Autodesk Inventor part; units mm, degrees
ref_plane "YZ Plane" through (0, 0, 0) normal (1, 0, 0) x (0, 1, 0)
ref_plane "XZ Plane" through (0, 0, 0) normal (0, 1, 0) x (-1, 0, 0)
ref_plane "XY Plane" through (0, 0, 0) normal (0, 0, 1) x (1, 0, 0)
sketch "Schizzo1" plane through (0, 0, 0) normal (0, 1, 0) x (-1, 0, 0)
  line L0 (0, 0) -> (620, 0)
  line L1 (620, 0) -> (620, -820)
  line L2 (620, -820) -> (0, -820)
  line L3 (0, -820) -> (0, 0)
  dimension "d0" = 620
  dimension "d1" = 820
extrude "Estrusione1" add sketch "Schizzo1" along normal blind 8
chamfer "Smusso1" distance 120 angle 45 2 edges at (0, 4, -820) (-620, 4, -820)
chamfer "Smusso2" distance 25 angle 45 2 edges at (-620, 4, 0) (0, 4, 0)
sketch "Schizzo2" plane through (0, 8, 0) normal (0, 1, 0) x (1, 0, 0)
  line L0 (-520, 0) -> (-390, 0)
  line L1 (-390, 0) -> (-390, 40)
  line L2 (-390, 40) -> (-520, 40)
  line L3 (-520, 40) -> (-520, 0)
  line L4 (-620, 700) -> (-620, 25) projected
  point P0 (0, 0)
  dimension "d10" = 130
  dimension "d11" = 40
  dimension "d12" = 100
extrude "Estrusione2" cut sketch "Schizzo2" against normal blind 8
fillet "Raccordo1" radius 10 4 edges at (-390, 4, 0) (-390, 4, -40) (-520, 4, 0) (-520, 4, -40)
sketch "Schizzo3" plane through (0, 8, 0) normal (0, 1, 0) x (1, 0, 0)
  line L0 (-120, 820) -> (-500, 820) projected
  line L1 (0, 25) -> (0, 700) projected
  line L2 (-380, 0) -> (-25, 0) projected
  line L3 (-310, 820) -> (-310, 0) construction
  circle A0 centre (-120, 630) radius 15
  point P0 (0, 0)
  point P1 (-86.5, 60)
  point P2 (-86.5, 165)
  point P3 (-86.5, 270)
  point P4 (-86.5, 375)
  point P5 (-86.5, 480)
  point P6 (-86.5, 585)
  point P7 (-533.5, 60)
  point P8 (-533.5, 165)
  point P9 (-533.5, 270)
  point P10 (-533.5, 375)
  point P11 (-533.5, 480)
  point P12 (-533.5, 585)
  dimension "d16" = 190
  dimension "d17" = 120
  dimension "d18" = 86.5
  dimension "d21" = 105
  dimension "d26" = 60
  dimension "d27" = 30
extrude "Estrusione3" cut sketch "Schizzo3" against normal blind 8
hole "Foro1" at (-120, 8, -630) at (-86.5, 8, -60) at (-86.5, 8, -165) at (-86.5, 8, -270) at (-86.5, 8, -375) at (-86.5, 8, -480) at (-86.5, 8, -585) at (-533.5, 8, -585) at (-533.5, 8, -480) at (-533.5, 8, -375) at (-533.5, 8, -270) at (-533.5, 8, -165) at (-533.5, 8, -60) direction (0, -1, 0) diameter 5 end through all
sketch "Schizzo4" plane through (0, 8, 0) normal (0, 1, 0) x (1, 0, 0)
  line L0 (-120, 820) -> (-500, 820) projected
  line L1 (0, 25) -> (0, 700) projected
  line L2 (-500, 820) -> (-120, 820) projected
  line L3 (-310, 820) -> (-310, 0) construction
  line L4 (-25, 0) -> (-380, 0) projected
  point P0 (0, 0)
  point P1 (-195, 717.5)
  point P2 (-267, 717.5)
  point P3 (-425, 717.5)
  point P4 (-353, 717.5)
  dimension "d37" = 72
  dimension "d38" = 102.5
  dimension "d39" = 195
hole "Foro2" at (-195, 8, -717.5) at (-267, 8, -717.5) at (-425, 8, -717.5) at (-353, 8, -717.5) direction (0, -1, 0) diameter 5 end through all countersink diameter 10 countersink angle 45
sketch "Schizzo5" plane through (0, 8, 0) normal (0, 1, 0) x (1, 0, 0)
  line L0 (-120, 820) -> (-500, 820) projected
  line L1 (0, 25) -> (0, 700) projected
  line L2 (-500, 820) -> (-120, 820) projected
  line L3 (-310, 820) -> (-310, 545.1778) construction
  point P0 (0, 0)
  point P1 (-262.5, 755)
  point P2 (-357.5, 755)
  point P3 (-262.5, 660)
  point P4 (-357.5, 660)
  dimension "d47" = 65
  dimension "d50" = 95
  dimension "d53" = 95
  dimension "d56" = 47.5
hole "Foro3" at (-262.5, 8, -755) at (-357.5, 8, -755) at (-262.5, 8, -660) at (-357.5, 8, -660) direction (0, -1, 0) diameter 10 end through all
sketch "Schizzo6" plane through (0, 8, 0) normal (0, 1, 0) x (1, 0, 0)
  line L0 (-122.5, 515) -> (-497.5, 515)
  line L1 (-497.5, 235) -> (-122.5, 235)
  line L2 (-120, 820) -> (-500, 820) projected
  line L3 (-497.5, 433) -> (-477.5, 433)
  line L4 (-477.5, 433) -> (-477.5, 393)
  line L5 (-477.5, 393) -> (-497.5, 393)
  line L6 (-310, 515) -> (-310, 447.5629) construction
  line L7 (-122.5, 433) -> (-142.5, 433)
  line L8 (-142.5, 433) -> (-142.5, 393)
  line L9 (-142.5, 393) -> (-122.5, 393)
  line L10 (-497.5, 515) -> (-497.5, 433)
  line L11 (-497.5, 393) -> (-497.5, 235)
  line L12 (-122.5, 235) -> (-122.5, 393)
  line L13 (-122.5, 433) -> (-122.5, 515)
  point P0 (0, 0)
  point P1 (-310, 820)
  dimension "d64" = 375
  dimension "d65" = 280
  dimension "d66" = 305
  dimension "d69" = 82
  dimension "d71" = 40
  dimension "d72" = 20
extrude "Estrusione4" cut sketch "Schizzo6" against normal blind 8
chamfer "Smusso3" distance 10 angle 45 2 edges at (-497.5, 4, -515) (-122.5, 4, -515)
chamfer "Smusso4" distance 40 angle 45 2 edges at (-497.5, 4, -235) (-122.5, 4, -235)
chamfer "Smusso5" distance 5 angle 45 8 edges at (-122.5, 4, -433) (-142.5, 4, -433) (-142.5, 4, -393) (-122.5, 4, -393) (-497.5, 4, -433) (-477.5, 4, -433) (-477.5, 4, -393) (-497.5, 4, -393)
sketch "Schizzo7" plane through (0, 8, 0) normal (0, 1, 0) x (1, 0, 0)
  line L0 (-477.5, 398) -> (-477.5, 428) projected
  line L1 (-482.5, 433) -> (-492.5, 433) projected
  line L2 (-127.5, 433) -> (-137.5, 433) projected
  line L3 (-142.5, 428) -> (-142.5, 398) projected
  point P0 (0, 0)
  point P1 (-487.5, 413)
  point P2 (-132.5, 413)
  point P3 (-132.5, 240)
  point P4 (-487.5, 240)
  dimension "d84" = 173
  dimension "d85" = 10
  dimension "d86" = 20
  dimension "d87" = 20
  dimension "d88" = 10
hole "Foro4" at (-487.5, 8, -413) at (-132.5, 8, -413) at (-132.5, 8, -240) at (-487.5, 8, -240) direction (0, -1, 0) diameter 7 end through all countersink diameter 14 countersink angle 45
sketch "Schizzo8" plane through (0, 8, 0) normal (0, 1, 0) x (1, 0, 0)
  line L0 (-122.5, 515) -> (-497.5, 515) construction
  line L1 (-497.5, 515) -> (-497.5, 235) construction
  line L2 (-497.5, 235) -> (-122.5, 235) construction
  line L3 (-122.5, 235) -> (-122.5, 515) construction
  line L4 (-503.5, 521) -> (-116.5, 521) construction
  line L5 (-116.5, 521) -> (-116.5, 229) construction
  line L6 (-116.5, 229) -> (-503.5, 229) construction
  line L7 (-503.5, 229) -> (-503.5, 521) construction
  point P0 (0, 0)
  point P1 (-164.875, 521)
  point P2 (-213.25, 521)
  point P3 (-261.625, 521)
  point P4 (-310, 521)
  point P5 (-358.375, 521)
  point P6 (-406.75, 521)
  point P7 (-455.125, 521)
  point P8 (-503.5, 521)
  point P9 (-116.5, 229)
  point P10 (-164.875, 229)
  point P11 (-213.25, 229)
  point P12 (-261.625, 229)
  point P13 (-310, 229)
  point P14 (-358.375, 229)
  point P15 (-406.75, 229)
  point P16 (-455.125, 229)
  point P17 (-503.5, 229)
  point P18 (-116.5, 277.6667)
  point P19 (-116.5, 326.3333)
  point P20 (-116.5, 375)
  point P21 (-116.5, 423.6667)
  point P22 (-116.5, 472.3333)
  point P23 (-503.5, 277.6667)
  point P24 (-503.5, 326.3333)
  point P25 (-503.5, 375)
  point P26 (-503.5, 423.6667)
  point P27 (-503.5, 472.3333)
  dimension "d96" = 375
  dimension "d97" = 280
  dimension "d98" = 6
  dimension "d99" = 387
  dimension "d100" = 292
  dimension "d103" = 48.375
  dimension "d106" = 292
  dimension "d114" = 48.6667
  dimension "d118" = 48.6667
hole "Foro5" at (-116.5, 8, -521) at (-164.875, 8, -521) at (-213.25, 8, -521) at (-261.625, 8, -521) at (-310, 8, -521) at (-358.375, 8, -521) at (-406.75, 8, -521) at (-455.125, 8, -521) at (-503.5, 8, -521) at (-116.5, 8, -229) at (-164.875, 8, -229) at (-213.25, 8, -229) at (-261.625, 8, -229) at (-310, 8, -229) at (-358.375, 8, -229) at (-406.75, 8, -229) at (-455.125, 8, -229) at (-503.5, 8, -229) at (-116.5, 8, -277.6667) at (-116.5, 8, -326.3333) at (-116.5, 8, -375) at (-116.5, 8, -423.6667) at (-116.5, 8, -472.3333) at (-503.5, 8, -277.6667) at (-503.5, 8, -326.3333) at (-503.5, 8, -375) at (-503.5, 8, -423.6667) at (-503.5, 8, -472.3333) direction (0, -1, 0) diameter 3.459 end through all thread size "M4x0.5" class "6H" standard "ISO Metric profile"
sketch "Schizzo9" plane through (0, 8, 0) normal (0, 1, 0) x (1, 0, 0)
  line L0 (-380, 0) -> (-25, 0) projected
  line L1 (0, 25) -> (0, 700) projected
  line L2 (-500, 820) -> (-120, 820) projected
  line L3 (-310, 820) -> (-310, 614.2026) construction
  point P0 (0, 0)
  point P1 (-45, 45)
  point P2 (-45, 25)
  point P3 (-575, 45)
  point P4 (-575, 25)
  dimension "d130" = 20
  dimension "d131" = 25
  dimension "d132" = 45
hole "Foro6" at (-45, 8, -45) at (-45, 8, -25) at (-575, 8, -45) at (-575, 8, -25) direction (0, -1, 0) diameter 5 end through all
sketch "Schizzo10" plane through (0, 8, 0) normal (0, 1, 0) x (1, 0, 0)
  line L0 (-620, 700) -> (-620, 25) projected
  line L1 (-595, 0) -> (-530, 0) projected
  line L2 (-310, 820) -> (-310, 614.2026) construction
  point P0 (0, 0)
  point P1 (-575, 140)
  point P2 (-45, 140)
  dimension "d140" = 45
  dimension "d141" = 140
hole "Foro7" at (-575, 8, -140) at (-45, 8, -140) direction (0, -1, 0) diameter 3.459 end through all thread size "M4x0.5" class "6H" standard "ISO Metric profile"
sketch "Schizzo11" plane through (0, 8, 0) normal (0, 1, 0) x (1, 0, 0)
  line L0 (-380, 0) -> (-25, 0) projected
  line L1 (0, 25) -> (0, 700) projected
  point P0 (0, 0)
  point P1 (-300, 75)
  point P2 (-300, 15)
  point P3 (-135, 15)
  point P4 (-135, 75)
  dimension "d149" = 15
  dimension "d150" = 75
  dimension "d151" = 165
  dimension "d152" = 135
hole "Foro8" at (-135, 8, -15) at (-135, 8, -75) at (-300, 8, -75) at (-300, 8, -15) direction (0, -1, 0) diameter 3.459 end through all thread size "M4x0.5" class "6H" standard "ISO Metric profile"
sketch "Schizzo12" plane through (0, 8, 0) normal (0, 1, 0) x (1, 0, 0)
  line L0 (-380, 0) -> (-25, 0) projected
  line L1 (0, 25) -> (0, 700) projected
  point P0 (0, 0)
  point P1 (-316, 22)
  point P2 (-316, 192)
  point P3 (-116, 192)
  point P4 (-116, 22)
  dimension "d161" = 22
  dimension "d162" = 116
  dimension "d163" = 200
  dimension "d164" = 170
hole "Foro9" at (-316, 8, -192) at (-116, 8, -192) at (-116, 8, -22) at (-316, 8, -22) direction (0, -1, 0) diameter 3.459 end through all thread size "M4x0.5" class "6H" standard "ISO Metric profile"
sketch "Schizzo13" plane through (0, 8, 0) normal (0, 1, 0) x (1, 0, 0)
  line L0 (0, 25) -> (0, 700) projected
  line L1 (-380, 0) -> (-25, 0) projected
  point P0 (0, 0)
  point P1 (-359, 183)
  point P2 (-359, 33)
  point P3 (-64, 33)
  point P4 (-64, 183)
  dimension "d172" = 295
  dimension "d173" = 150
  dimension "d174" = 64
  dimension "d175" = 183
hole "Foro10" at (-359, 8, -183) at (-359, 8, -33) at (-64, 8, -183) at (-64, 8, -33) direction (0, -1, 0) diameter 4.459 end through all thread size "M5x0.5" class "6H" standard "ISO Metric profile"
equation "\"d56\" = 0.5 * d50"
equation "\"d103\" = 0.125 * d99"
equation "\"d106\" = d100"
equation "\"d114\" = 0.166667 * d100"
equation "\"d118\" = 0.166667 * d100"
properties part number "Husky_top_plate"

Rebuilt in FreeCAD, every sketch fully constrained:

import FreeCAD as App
import Part
import Sketcher

V = App.Vector


def edges_at(feature, points):
    """Names of the edges that pass closest to the given points."""
    edges = feature.Shape.Edges
    near = lambda p: min(range(len(edges)), key=lambda i: edges[i].distToShape(Part.Vertex(*p))[0])
    return sorted({f"Edge{near(p) + 1}" for p in points})

doc = App.newDocument("Part")
body = doc.addObject("PartDesign::Body", "Body")

sketch1 = doc.addObject("Sketcher::SketchObject", "Sketch")
body.addObject(sketch1)
sketch1.AttachmentSupport = (doc.XZ_Plane, [""])
sketch1.MapMode = "FlatFace"
sketch1.addGeometry([
    Part.LineSegment(V(-620, 0, 0), V(0, 0, 0)),
    Part.LineSegment(V(0, 0, 0), V(0, -820, 0)),
    Part.LineSegment(V(0, -820, 0), V(-620, -820, 0)),
    Part.LineSegment(V(-620, -820, 0), V(-620, 0, 0)),
], False)
sketch1.addConstraint([
    Sketcher.Constraint("Coincident", 0, 2, 1, 1),
    Sketcher.Constraint("Coincident", 1, 2, 2, 1),
    Sketcher.Constraint("Coincident", 2, 2, 3, 1),
    Sketcher.Constraint("Coincident", 3, 2, 0, 1),
    Sketcher.Constraint("Horizontal", 0),
    Sketcher.Constraint("Vertical", 1),
    Sketcher.Constraint("Horizontal", 2),
    Sketcher.Constraint("Vertical", 3),
    Sketcher.Constraint("Coincident", 0, 2, -1, 1),
    Sketcher.Constraint("DistanceX", 0, 1, 0, 2, 620.0),
    Sketcher.Constraint("DistanceY", 1, 2, 1, 1, 820.0),
])
pad1 = doc.addObject("PartDesign::Pad", "Pad")
body.addObject(pad1)
pad1.Profile = sketch1
pad1.Length = 8
pad1.Reversed = True
doc.recompute()

chamfer = doc.addObject("PartDesign::Chamfer", "Chamfer")
body.addObject(chamfer)
chamfer.Base = (pad1, edges_at(pad1, [(0, 4, -820), (-620, 4, -820)]))
chamfer.Size = 120
doc.recompute()

chamfer2 = doc.addObject("PartDesign::Chamfer", "Chamfer001")
body.addObject(chamfer2)
chamfer2.Base = (chamfer, edges_at(chamfer, [(-620, 4, 0), (0, 4, 0)]))
chamfer2.Size = 25

sketch2 = doc.addObject("Sketcher::SketchObject", "Sketch001")
body.addObject(sketch2)
sketch2.AttachmentSupport = (doc.XZ_Plane, [""])
sketch2.MapMode = "FlatFace"
sketch2.AttachmentOffset = App.Placement(V(0, 0, -8), App.Rotation())
sketch2.addGeometry([
    Part.LineSegment(V(-520, -40, 0), V(-520, 0, 0)),
    Part.LineSegment(V(-520, 0, 0), V(-390, 0, 0)),
    Part.LineSegment(V(-390, 0, 0), V(-390, -40, 0)),
    Part.LineSegment(V(-390, -40, 0), V(-520, -40, 0)),
], False)
sketch2.addConstraint([
    Sketcher.Constraint("Coincident", 0, 2, 1, 1),
    Sketcher.Constraint("Coincident", 1, 2, 2, 1),
    Sketcher.Constraint("Coincident", 2, 2, 3, 1),
    Sketcher.Constraint("Coincident", 3, 2, 0, 1),
    Sketcher.Constraint("Vertical", 0),
    Sketcher.Constraint("Horizontal", 1),
    Sketcher.Constraint("Vertical", 2),
    Sketcher.Constraint("Horizontal", 3),
    Sketcher.Constraint("PointOnObject", 0, 2, -1),
    Sketcher.Constraint("DistanceX", 1, 1, 1, 2, 130.0),
    Sketcher.Constraint("DistanceY", 0, 1, 0, 2, 40.0),
    Sketcher.Constraint("DistanceX", 0, 2, -1, 1, 520.0),
])
pocket1 = doc.addObject("PartDesign::Pocket", "Pocket")
body.addObject(pocket1)
pocket1.Profile = sketch2
pocket1.Length = 8
pocket1.Reversed = True
doc.recompute()

fillet = doc.addObject("PartDesign::Fillet", "Fillet")
body.addObject(fillet)
fillet.Base = (pocket1, edges_at(pocket1, [
    (-390, 4, 0),
    (-390, 4, -40),
    (-520, 4, 0),
    (-520, 4, -40),
]))
fillet.Radius = 10

sketch3 = doc.addObject("Sketcher::SketchObject", "Sketch002")
body.addObject(sketch3)
sketch3.AttachmentSupport = (doc.XZ_Plane, [""])
sketch3.MapMode = "FlatFace"
sketch3.AttachmentOffset = App.Placement(V(0, 0, -8), App.Rotation())
sketch3.addGeometry(Part.Circle(V(-120, -630, 0), V(0, 0, 1), 15), False)
sketch3.addConstraint([
    Sketcher.Constraint("Diameter", 0, 30.0),
    Sketcher.Constraint("DistanceX", 0, 3, -1, 1, 120.0),
    Sketcher.Constraint("DistanceY", 0, 3, -1, 1, 630.0),
])
pocket2 = doc.addObject("PartDesign::Pocket", "Pocket001")
body.addObject(pocket2)
pocket2.Profile = sketch3
pocket2.Length = 8
pocket2.Reversed = True

sketch4 = doc.addObject("Sketcher::SketchObject", "Sketch003")
body.addObject(sketch4)
sketch4.AttachmentSupport = (doc.XZ_Plane, [""])
sketch4.MapMode = "FlatFace"
sketch4.AttachmentOffset = App.Placement(V(0, 0, -8), App.Rotation())
sketch4.addGeometry([
    Part.Circle(V(-120, -630, 0), V(0, 0, 1), 2.5),
    Part.Circle(V(-86.5, -60, 0), V(0, 0, 1), 2.5),
    Part.Circle(V(-86.5, -165, 0), V(0, 0, 1), 2.5),
    Part.Circle(V(-86.5, -270, 0), V(0, 0, 1), 2.5),
    Part.Circle(V(-86.5, -375, 0), V(0, 0, 1), 2.5),
    Part.Circle(V(-86.5, -480, 0), V(0, 0, 1), 2.5),
    Part.Circle(V(-86.5, -585, 0), V(0, 0, 1), 2.5),
    Part.Circle(V(-533.5, -585, 0), V(0, 0, 1), 2.5),
    Part.Circle(V(-533.5, -480, 0), V(0, 0, 1), 2.5),
    Part.Circle(V(-533.5, -375, 0), V(0, 0, 1), 2.5),
    Part.Circle(V(-533.5, -270, 0), V(0, 0, 1), 2.5),
    Part.Circle(V(-533.5, -165, 0), V(0, 0, 1), 2.5),
    Part.Circle(V(-533.5, -60, 0), V(0, 0, 1), 2.5),
], False)
sketch4.addConstraint([
    Sketcher.Constraint("Equal", 0, 1),
    Sketcher.Constraint("Equal", 1, 2),
    Sketcher.Constraint("Equal", 2, 3),
    Sketcher.Constraint("Equal", 3, 4),
    Sketcher.Constraint("Equal", 4, 5),
    Sketcher.Constraint("Equal", 5, 6),
    Sketcher.Constraint("Equal", 6, 7),
    Sketcher.Constraint("Equal", 7, 8),
    Sketcher.Constraint("Equal", 8, 9),
    Sketcher.Constraint("Equal", 9, 10),
    Sketcher.Constraint("Equal", 10, 11),
    Sketcher.Constraint("Equal", 11, 12),
    Sketcher.Constraint("Horizontal", 6, 3, 7, 3),
    Sketcher.Constraint("Horizontal", 5, 3, 8, 3),
    Sketcher.Constraint("Horizontal", 4, 3, 9, 3),
    Sketcher.Constraint("Horizontal", 3, 3, 10, 3),
    Sketcher.Constraint("Horizontal", 2, 3, 11, 3),
    Sketcher.Constraint("Horizontal", 1, 3, 12, 3),
    Sketcher.Constraint("Vertical", 1, 3, 2, 3),
    Sketcher.Constraint("Vertical", 2, 3, 3, 3),
    Sketcher.Constraint("Vertical", 3, 3, 4, 3),
    Sketcher.Constraint("Vertical", 4, 3, 5, 3),
    Sketcher.Constraint("Vertical", 5, 3, 6, 3),
    Sketcher.Constraint("Vertical", 7, 3, 8, 3),
    Sketcher.Constraint("Vertical", 8, 3, 9, 3),
    Sketcher.Constraint("Vertical", 9, 3, 10, 3),
    Sketcher.Constraint("Vertical", 10, 3, 11, 3),
    Sketcher.Constraint("Vertical", 11, 3, 12, 3),
    Sketcher.Constraint("Diameter", 0, 5.0),
    Sketcher.Constraint("DistanceX", 0, 3, -1, 1, 120.0),
    Sketcher.Constraint("DistanceY", 0, 3, -1, 1, 630.0),
    Sketcher.Constraint("DistanceY", 1, 3, -1, 1, 60.0),
    Sketcher.Constraint("DistanceY", 2, 3, -1, 1, 165.0),
    Sketcher.Constraint("DistanceY", 3, 3, -1, 1, 270.0),
    Sketcher.Constraint("DistanceY", 4, 3, -1, 1, 375.0),
    Sketcher.Constraint("DistanceY", 5, 3, -1, 1, 480.0),
    Sketcher.Constraint("DistanceY", 6, 3, -1, 1, 585.0),
    Sketcher.Constraint("DistanceX", 7, 3, 6, 3, 447.0),
    Sketcher.Constraint("DistanceX", 1, 3, -1, 1, 86.5),
])
doc.recompute()
hole = doc.addObject("PartDesign::Hole", "Hole")
body.addObject(hole)
hole.Profile = sketch4
hole.ThreadType = "None"
hole.Diameter = 5
hole.DepthType = "ThroughAll"
hole.Reversed = True

sketch5 = doc.addObject("Sketcher::SketchObject", "Sketch004")
body.addObject(sketch5)
sketch5.AttachmentSupport = (doc.XZ_Plane, [""])
sketch5.MapMode = "FlatFace"
sketch5.AttachmentOffset = App.Placement(V(0, 0, -8), App.Rotation())
sketch5.addGeometry([
    Part.Circle(V(-195, -717.5, 0), V(0, 0, 1), 2.5),
    Part.Circle(V(-267, -717.5, 0), V(0, 0, 1), 2.5),
    Part.Circle(V(-425, -717.5, 0), V(0, 0, 1), 2.5),
    Part.Circle(V(-353, -717.5, 0), V(0, 0, 1), 2.5),
], False)
sketch5.addConstraint([
    Sketcher.Constraint("Equal", 0, 1),
    Sketcher.Constraint("Equal", 1, 2),
    Sketcher.Constraint("Equal", 2, 3),
    Sketcher.Constraint("Horizontal", 0, 3, 1, 3),
    Sketcher.Constraint("Horizontal", 1, 3, 2, 3),
    Sketcher.Constraint("Horizontal", 2, 3, 3, 3),
    Sketcher.Constraint("Diameter", 0, 5.0),
    Sketcher.Constraint("DistanceX", 0, 3, -1, 1, 195.0),
    Sketcher.Constraint("DistanceX", 1, 3, -1, 1, 267.0),
    Sketcher.Constraint("DistanceX", 2, 3, -1, 1, 425.0),
    Sketcher.Constraint("DistanceX", 3, 3, -1, 1, 353.0),
    Sketcher.Constraint("DistanceY", 0, 3, -1, 1, 717.5),
])
doc.recompute()
hole2 = doc.addObject("PartDesign::Hole", "Hole001")
body.addObject(hole2)
hole2.Profile = sketch5
hole2.ThreadType = "None"
hole2.Diameter = 5
hole2.DepthType = "ThroughAll"
hole2.HoleCutType = "Countersink"
hole2.HoleCutDiameter = 10
hole2.HoleCutCountersinkAngle = 45
hole2.Reversed = True

sketch6 = doc.addObject("Sketcher::SketchObject", "Sketch005")
body.addObject(sketch6)
sketch6.AttachmentSupport = (doc.XZ_Plane, [""])
sketch6.MapMode = "FlatFace"
sketch6.AttachmentOffset = App.Placement(V(0, 0, -8), App.Rotation())
sketch6.addGeometry([
    Part.Circle(V(-262.5, -755, 0), V(0, 0, 1), 5),
    Part.Circle(V(-357.5, -755, 0), V(0, 0, 1), 5),
    Part.Circle(V(-262.5, -660, 0), V(0, 0, 1), 5),
    Part.Circle(V(-357.5, -660, 0), V(0, 0, 1), 5),
], False)
sketch6.addConstraint([
    Sketcher.Constraint("Equal", 0, 1),
    Sketcher.Constraint("Equal", 1, 2),
    Sketcher.Constraint("Equal", 2, 3),
    Sketcher.Constraint("Horizontal", 0, 3, 1, 3),
    Sketcher.Constraint("Horizontal", 2, 3, 3, 3),
    Sketcher.Constraint("Vertical", 0, 3, 2, 3),
    Sketcher.Constraint("Vertical", 1, 3, 3, 3),
    Sketcher.Constraint("Diameter", 0, 10.0),
    Sketcher.Constraint("DistanceY", 0, 3, -1, 1, 755.0),
    Sketcher.Constraint("DistanceY", 2, 3, -1, 1, 660.0),
    Sketcher.Constraint("DistanceX", 1, 3, 0, 3, 95.0),
    Sketcher.Constraint("DistanceX", 0, 3, -1, 1, 262.5),
])
doc.recompute()
hole3 = doc.addObject("PartDesign::Hole", "Hole002")
body.addObject(hole3)
hole3.Profile = sketch6
hole3.ThreadType = "None"
hole3.Diameter = 10
hole3.DepthType = "ThroughAll"
hole3.Reversed = True

sketch7 = doc.addObject("Sketcher::SketchObject", "Sketch006")
body.addObject(sketch7)
sketch7.AttachmentSupport = (doc.XZ_Plane, [""])
sketch7.MapMode = "FlatFace"
sketch7.AttachmentOffset = App.Placement(V(0, 0, -8), App.Rotation())
sketch7.addGeometry([
    Part.LineSegment(V(-122.5, -433, 0), V(-122.5, -515, 0)),
    Part.LineSegment(V(-122.5, -515, 0), V(-497.5, -515, 0)),
    Part.LineSegment(V(-497.5, -515, 0), V(-497.5, -433, 0)),
    Part.LineSegment(V(-497.5, -433, 0), V(-477.5, -433, 0)),
    Part.LineSegment(V(-477.5, -433, 0), V(-477.5, -393, 0)),
    Part.LineSegment(V(-477.5, -393, 0), V(-497.5, -393, 0)),
    Part.LineSegment(V(-497.5, -393, 0), V(-497.5, -235, 0)),
    Part.LineSegment(V(-497.5, -235, 0), V(-122.5, -235, 0)),
    Part.LineSegment(V(-122.5, -235, 0), V(-122.5, -393, 0)),
    Part.LineSegment(V(-122.5, -393, 0), V(-142.5, -393, 0)),
    Part.LineSegment(V(-142.5, -393, 0), V(-142.5, -433, 0)),
    Part.LineSegment(V(-142.5, -433, 0), V(-122.5, -433, 0)),
], False)
sketch7.addConstraint([
    Sketcher.Constraint("Coincident", 0, 2, 1, 1),
    Sketcher.Constraint("Coincident", 1, 2, 2, 1),
    Sketcher.Constraint("Coincident", 2, 2, 3, 1),
    Sketcher.Constraint("Coincident", 3, 2, 4, 1),
    Sketcher.Constraint("Coincident", 4, 2, 5, 1),
    Sketcher.Constraint("Coincident", 5, 2, 6, 1),
    Sketcher.Constraint("Coincident", 6, 2, 7, 1),
    Sketcher.Constraint("Coincident", 7, 2, 8, 1),
    Sketcher.Constraint("Coincident", 8, 2, 9, 1),
    Sketcher.Constraint("Coincident", 9, 2, 10, 1),
    Sketcher.Constraint("Coincident", 10, 2, 11, 1),
    Sketcher.Constraint("Coincident", 11, 2, 0, 1),
    Sketcher.Constraint("Vertical", 0),
    Sketcher.Constraint("Horizontal", 1),
    Sketcher.Constraint("Vertical", 2),
    Sketcher.Constraint("Horizontal", 3),
    Sketcher.Constraint("Vertical", 4),
    Sketcher.Constraint("Horizontal", 5),
    Sketcher.Constraint("Vertical", 6),
    Sketcher.Constraint("Horizontal", 7),
    Sketcher.Constraint("Vertical", 8),
    Sketcher.Constraint("Horizontal", 9),
    Sketcher.Constraint("Vertical", 10),
    Sketcher.Constraint("Horizontal", 11),
    Sketcher.Constraint("Horizontal", 5, 2, 8, 2),
    Sketcher.Constraint("Horizontal", 3, 2, 10, 2),
    Sketcher.Constraint("Vertical", 2, 2, 5, 2),
    Sketcher.Constraint("Vertical", 0, 2, 7, 2),
    Sketcher.Constraint("Equal", 5, 9),
    Sketcher.Constraint("DistanceX", 1, 2, 1, 1, 375.0),
    Sketcher.Constraint("DistanceX", 3, 1, 3, 2, 20.0),
    Sketcher.Constraint("DistanceY", 0, 2, 0, 1, 82.0),
    Sketcher.Constraint("DistanceY", 4, 1, 4, 2, 40.0),
    Sketcher.Constraint("DistanceY", 1, 2, 6, 2, 280.0),
    Sketcher.Constraint("DistanceY", 0, 2, -1, 1, 515.0),
    Sketcher.Constraint("DistanceX", 0, 2, -1, 1, 122.5),
])
pocket3 = doc.addObject("PartDesign::Pocket", "Pocket002")
body.addObject(pocket3)
pocket3.Profile = sketch7
pocket3.Length = 8
pocket3.Reversed = True
doc.recompute()

chamfer3 = doc.addObject("PartDesign::Chamfer", "Chamfer002")
body.addObject(chamfer3)
chamfer3.Base = (pocket3, edges_at(pocket3, [(-497.5, 4, -515), (-122.5, 4, -515)]))
chamfer3.Size = 10
doc.recompute()

chamfer4 = doc.addObject("PartDesign::Chamfer", "Chamfer003")
body.addObject(chamfer4)
chamfer4.Base = (chamfer3, edges_at(chamfer3, [(-497.5, 4, -235), (-122.5, 4, -235)]))
chamfer4.Size = 40
doc.recompute()

chamfer5 = doc.addObject("PartDesign::Chamfer", "Chamfer004")
body.addObject(chamfer5)
chamfer5.Base = (chamfer4, edges_at(chamfer4, [
    (-122.5, 4, -433),
    (-142.5, 4, -433),
    (-142.5, 4, -393),
    (-122.5, 4, -393),
    (-497.5, 4, -433),
    (-477.5, 4, -433),
    (-477.5, 4, -393),
    (-497.5, 4, -393),
]))
chamfer5.Size = 5

sketch8 = doc.addObject("Sketcher::SketchObject", "Sketch007")
body.addObject(sketch8)
sketch8.AttachmentSupport = (doc.XZ_Plane, [""])
sketch8.MapMode = "FlatFace"
sketch8.AttachmentOffset = App.Placement(V(0, 0, -8), App.Rotation())
sketch8.addGeometry([
    Part.Circle(V(-487.5, -413, 0), V(0, 0, 1), 3.5),
    Part.Circle(V(-132.5, -413, 0), V(0, 0, 1), 3.5),
    Part.Circle(V(-132.5, -240, 0), V(0, 0, 1), 3.5),
    Part.Circle(V(-487.5, -240, 0), V(0, 0, 1), 3.5),
], False)
sketch8.addConstraint([
    Sketcher.Constraint("Equal", 0, 1),
    Sketcher.Constraint("Equal", 1, 2),
    Sketcher.Constraint("Equal", 2, 3),
    Sketcher.Constraint("Horizontal", 0, 3, 1, 3),
    Sketcher.Constraint("Horizontal", 2, 3, 3, 3),
    Sketcher.Constraint("Vertical", 1, 3, 2, 3),
    Sketcher.Constraint("Vertical", 0, 3, 3, 3),
    Sketcher.Constraint("Diameter", 0, 7.0),
    Sketcher.Constraint("DistanceY", 0, 3, -1, 1, 413.0),
    Sketcher.Constraint("DistanceY", 2, 3, -1, 1, 240.0),
    Sketcher.Constraint("DistanceX", 0, 3, 1, 3, 355.0),
    Sketcher.Constraint("DistanceX", 0, 3, -1, 1, 487.5),
])
doc.recompute()
hole4 = doc.addObject("PartDesign::Hole", "Hole003")
body.addObject(hole4)
hole4.Profile = sketch8
hole4.ThreadType = "None"
hole4.Diameter = 7
hole4.DepthType = "ThroughAll"
hole4.HoleCutType = "Countersink"
hole4.HoleCutDiameter = 14
hole4.HoleCutCountersinkAngle = 45
hole4.Reversed = True

sketch9 = doc.addObject("Sketcher::SketchObject", "Sketch008")
body.addObject(sketch9)
sketch9.AttachmentSupport = (doc.XZ_Plane, [""])
sketch9.MapMode = "FlatFace"
sketch9.AttachmentOffset = App.Placement(V(0, 0, -8), App.Rotation())
sketch9.addGeometry([
    Part.Circle(V(-116.5, -521, 0), V(0, 0, 1), 1.7295),
    Part.Circle(V(-164.875, -521, 0), V(0, 0, 1), 1.7295),
    Part.Circle(V(-213.25, -521, 0), V(0, 0, 1), 1.7295),
    Part.Circle(V(-261.625, -521, 0), V(0, 0, 1), 1.7295),
    Part.Circle(V(-310, -521, 0), V(0, 0, 1), 1.7295),
    Part.Circle(V(-358.375, -521, 0), V(0, 0, 1), 1.7295),
    Part.Circle(V(-406.75, -521, 0), V(0, 0, 1), 1.7295),
    Part.Circle(V(-455.125, -521, 0), V(0, 0, 1), 1.7295),
    Part.Circle(V(-503.5, -521, 0), V(0, 0, 1), 1.7295),
    Part.Circle(V(-116.5, -229, 0), V(0, 0, 1), 1.7295),
    Part.Circle(V(-164.875, -229, 0), V(0, 0, 1), 1.7295),
    Part.Circle(V(-213.25, -229, 0), V(0, 0, 1), 1.7295),
    Part.Circle(V(-261.625, -229, 0), V(0, 0, 1), 1.7295),
    Part.Circle(V(-310, -229, 0), V(0, 0, 1), 1.7295),
    Part.Circle(V(-358.375, -229, 0), V(0, 0, 1), 1.7295),
    Part.Circle(V(-406.75, -229, 0), V(0, 0, 1), 1.7295),
    Part.Circle(V(-455.125, -229, 0), V(0, 0, 1), 1.7295),
    Part.Circle(V(-503.5, -229, 0), V(0, 0, 1), 1.7295),
    Part.Circle(V(-116.5, -277.6667, 0), V(0, 0, 1), 1.7295),
    Part.Circle(V(-116.5, -326.3333, 0), V(0, 0, 1), 1.7295),
    Part.Circle(V(-116.5, -375, 0), V(0, 0, 1), 1.7295),
    Part.Circle(V(-116.5, -423.6667, 0), V(0, 0, 1), 1.7295),
    Part.Circle(V(-116.5, -472.3333, 0), V(0, 0, 1), 1.7295),
    Part.Circle(V(-503.5, -277.6667, 0), V(0, 0, 1), 1.7295),
    Part.Circle(V(-503.5, -326.3333, 0), V(0, 0, 1), 1.7295),
    Part.Circle(V(-503.5, -375, 0), V(0, 0, 1), 1.7295),
    Part.Circle(V(-503.5, -423.6667, 0), V(0, 0, 1), 1.7295),
    Part.Circle(V(-503.5, -472.3333, 0), V(0, 0, 1), 1.7295),
], False)
sketch9.addConstraint([
    Sketcher.Constraint("Equal", 0, 1),
    Sketcher.Constraint("Equal", 1, 2),
    Sketcher.Constraint("Equal", 2, 3),
    Sketcher.Constraint("Equal", 3, 4),
    Sketcher.Constraint("Equal", 4, 5),
    Sketcher.Constraint("Equal", 5, 6),
    Sketcher.Constraint("Equal", 6, 7),
    Sketcher.Constraint("Equal", 7, 8),
    Sketcher.Constraint("Equal", 8, 9),
    Sketcher.Constraint("Equal", 9, 10),
    Sketcher.Constraint("Equal", 10, 11),
    Sketcher.Constraint("Equal", 11, 12),
    Sketcher.Constraint("Equal", 12, 13),
    Sketcher.Constraint("Equal", 13, 14),
    Sketcher.Constraint("Equal", 14, 15),
    Sketcher.Constraint("Equal", 15, 16),
    Sketcher.Constraint("Equal", 16, 17),
    Sketcher.Constraint("Equal", 17, 18),
    Sketcher.Constraint("Equal", 18, 19),
    Sketcher.Constraint("Equal", 19, 20),
    Sketcher.Constraint("Equal", 20, 21),
    Sketcher.Constraint("Equal", 21, 22),
    Sketcher.Constraint("Equal", 22, 23),
    Sketcher.Constraint("Equal", 23, 24),
    Sketcher.Constraint("Equal", 24, 25),
    Sketcher.Constraint("Equal", 25, 26),
    Sketcher.Constraint("Equal", 26, 27),
    Sketcher.Constraint("Horizontal", 0, 3, 1, 3),
    Sketcher.Constraint("Horizontal", 1, 3, 2, 3),
    Sketcher.Constraint("Horizontal", 2, 3, 3, 3),
    Sketcher.Constraint("Horizontal", 3, 3, 4, 3),
    Sketcher.Constraint("Horizontal", 4, 3, 5, 3),
    Sketcher.Constraint("Horizontal", 5, 3, 6, 3),
    Sketcher.Constraint("Horizontal", 6, 3, 7, 3),
    Sketcher.Constraint("Horizontal", 7, 3, 8, 3),
    Sketcher.Constraint("Horizontal", 9, 3, 10, 3),
    Sketcher.Constraint("Horizontal", 10, 3, 11, 3),
    Sketcher.Constraint("Horizontal", 11, 3, 12, 3),
    Sketcher.Constraint("Horizontal", 12, 3, 13, 3),
    Sketcher.Constraint("Horizontal", 13, 3, 14, 3),
    Sketcher.Constraint("Horizontal", 14, 3, 15, 3),
    Sketcher.Constraint("Horizontal", 15, 3, 16, 3),
    Sketcher.Constraint("Horizontal", 16, 3, 17, 3),
    Sketcher.Constraint("Horizontal", 18, 3, 23, 3),
    Sketcher.Constraint("Horizontal", 19, 3, 24, 3),
    Sketcher.Constraint("Horizontal", 20, 3, 25, 3),
    Sketcher.Constraint("Horizontal", 21, 3, 26, 3),
    Sketcher.Constraint("Horizontal", 22, 3, 27, 3),
    Sketcher.Constraint("Vertical", 0, 3, 9, 3),
    Sketcher.Constraint("Vertical", 1, 3, 10, 3),
    Sketcher.Constraint("Vertical", 2, 3, 11, 3),
    Sketcher.Constraint("Vertical", 3, 3, 12, 3),
    Sketcher.Constraint("Vertical", 4, 3, 13, 3),
    Sketcher.Constraint("Vertical", 5, 3, 14, 3),
    Sketcher.Constraint("Vertical", 6, 3, 15, 3),
    Sketcher.Constraint("Vertical", 7, 3, 16, 3),
    Sketcher.Constraint("Vertical", 8, 3, 17, 3),
    Sketcher.Constraint("Vertical", 9, 3, 18, 3),
    Sketcher.Constraint("Vertical", 18, 3, 19, 3),
    Sketcher.Constraint("Vertical", 19, 3, 20, 3),
    Sketcher.Constraint("Vertical", 20, 3, 21, 3),
    Sketcher.Constraint("Vertical", 21, 3, 22, 3),
    Sketcher.Constraint("Vertical", 17, 3, 23, 3),
    Sketcher.Constraint("Vertical", 23, 3, 24, 3),
    Sketcher.Constraint("Vertical", 24, 3, 25, 3),
    Sketcher.Constraint("Vertical", 25, 3, 26, 3),
    Sketcher.Constraint("Vertical", 26, 3, 27, 3),
    Sketcher.Constraint("Diameter", 0, 3.459),
    Sketcher.Constraint("DistanceY", 0, 3, -1, 1, 521.0),
    Sketcher.Constraint("DistanceX", 4, 3, -1, 1, 310.0),
    Sketcher.Constraint("DistanceY", 9, 3, -1, 1, 229.0),
    Sketcher.Constraint("DistanceY", 20, 3, -1, 1, 375.0),
    Sketcher.Constraint("DistanceX", 0, 3, -1, 1, 116.5),
    Sketcher.Constraint("DistanceX", 8, 3, -1, 1, 503.5),
    Sketcher.Constraint("DistanceX", 5, 3, 1, 3, 193.5),
    Sketcher.Constraint("DistanceX", 6, 3, 2, 3, 193.5),
    Sketcher.Constraint("DistanceX", 7, 3, 3, 3, 193.5),
    Sketcher.Constraint("DistanceX", 2, 3, -1, 1, 213.25),
    Sketcher.Constraint("DistanceX", 3, 3, 1, 3, 96.75),
    Sketcher.Constraint("DistanceX", 1, 3, -1, 1, 164.875),
    Sketcher.Constraint("DistanceY", 18, 3, -1, 1, 277.6667),
    Sketcher.Constraint("DistanceY", 19, 3, -1, 1, 326.3333),
    Sketcher.Constraint("DistanceY", 21, 3, -1, 1, 423.6667),
    Sketcher.Constraint("DistanceY", 22, 3, -1, 1, 472.3333),
])
doc.recompute()
hole5 = doc.addObject("PartDesign::Hole", "Hole004")
body.addObject(hole5)
hole5.Profile = sketch9
hole5.ThreadType = "None"
hole5.Diameter = 3.459
hole5.DepthType = "ThroughAll"
hole5.Reversed = True

sketch10 = doc.addObject("Sketcher::SketchObject", "Sketch009")
body.addObject(sketch10)
sketch10.AttachmentSupport = (doc.XZ_Plane, [""])
sketch10.MapMode = "FlatFace"
sketch10.AttachmentOffset = App.Placement(V(0, 0, -8), App.Rotation())
sketch10.addGeometry([
    Part.Circle(V(-45, -45, 0), V(0, 0, 1), 2.5),
    Part.Circle(V(-45, -25, 0), V(0, 0, 1), 2.5),
    Part.Circle(V(-575, -45, 0), V(0, 0, 1), 2.5),
    Part.Circle(V(-575, -25, 0), V(0, 0, 1), 2.5),
], False)
sketch10.addConstraint([
    Sketcher.Constraint("Equal", 0, 1),
    Sketcher.Constraint("Equal", 1, 2),
    Sketcher.Constraint("Equal", 2, 3),
    Sketcher.Constraint("Horizontal", 0, 3, 2, 3),
    Sketcher.Constraint("Horizontal", 1, 3, 3, 3),
    Sketcher.Constraint("Vertical", 0, 3, 1, 3),
    Sketcher.Constraint("Vertical", 2, 3, 3, 3),
    Sketcher.Constraint("Diameter", 0, 5.0),
    Sketcher.Constraint("DistanceX", 0, 3, -1, 1, 45.0),
    Sketcher.Constraint("DistanceY", 0, 3, -1, 1, 45.0),
    Sketcher.Constraint("DistanceY", 1, 3, -1, 1, 25.0),
    Sketcher.Constraint("DistanceX", 2, 3, -1, 1, 575.0),
])
doc.recompute()
hole6 = doc.addObject("PartDesign::Hole", "Hole005")
body.addObject(hole6)
hole6.Profile = sketch10
hole6.ThreadType = "None"
hole6.Diameter = 5
hole6.DepthType = "ThroughAll"
hole6.Reversed = True

sketch11 = doc.addObject("Sketcher::SketchObject", "Sketch010")
body.addObject(sketch11)
sketch11.AttachmentSupport = (doc.XZ_Plane, [""])
sketch11.MapMode = "FlatFace"
sketch11.AttachmentOffset = App.Placement(V(0, 0, -8), App.Rotation())
sketch11.addGeometry([
    Part.Circle(V(-575, -140, 0), V(0, 0, 1), 1.7295),
    Part.Circle(V(-45, -140, 0), V(0, 0, 1), 1.7295),
], False)
sketch11.addConstraint([
    Sketcher.Constraint("Equal", 0, 1),
    Sketcher.Constraint("Horizontal", 0, 3, 1, 3),
    Sketcher.Constraint("Diameter", 0, 3.459),
    Sketcher.Constraint("DistanceX", 0, 3, -1, 1, 575.0),
    Sketcher.Constraint("DistanceY", 0, 3, -1, 1, 140.0),
    Sketcher.Constraint("DistanceX", 1, 3, -1, 1, 45.0),
])
doc.recompute()
hole7 = doc.addObject("PartDesign::Hole", "Hole006")
body.addObject(hole7)
hole7.Profile = sketch11
hole7.ThreadType = "None"
hole7.Diameter = 3.459
hole7.DepthType = "ThroughAll"
hole7.Reversed = True

sketch12 = doc.addObject("Sketcher::SketchObject", "Sketch011")
body.addObject(sketch12)
sketch12.AttachmentSupport = (doc.XZ_Plane, [""])
sketch12.MapMode = "FlatFace"
sketch12.AttachmentOffset = App.Placement(V(0, 0, -8), App.Rotation())
sketch12.addGeometry([
    Part.Circle(V(-135, -15, 0), V(0, 0, 1), 1.7295),
    Part.Circle(V(-135, -75, 0), V(0, 0, 1), 1.7295),
    Part.Circle(V(-300, -75, 0), V(0, 0, 1), 1.7295),
    Part.Circle(V(-300, -15, 0), V(0, 0, 1), 1.7295),
], False)
sketch12.addConstraint([
    Sketcher.Constraint("Equal", 0, 1),
    Sketcher.Constraint("Equal", 1, 2),
    Sketcher.Constraint("Equal", 2, 3),
    Sketcher.Constraint("Horizontal", 1, 3, 2, 3),
    Sketcher.Constraint("Horizontal", 0, 3, 3, 3),
    Sketcher.Constraint("Vertical", 0, 3, 1, 3),
    Sketcher.Constraint("Vertical", 2, 3, 3, 3),
    Sketcher.Constraint("Diameter", 0, 3.459),
    Sketcher.Constraint("DistanceX", 0, 3, -1, 1, 135.0),
    Sketcher.Constraint("DistanceY", 0, 3, -1, 1, 15.0),
    Sketcher.Constraint("DistanceY", 1, 3, -1, 1, 75.0),
    Sketcher.Constraint("DistanceX", 2, 3, -1, 1, 300.0),
])
doc.recompute()
hole8 = doc.addObject("PartDesign::Hole", "Hole007")
body.addObject(hole8)
hole8.Profile = sketch12
hole8.ThreadType = "None"
hole8.Diameter = 3.459
hole8.DepthType = "ThroughAll"
hole8.Reversed = True

sketch13 = doc.addObject("Sketcher::SketchObject", "Sketch012")
body.addObject(sketch13)
sketch13.AttachmentSupport = (doc.XZ_Plane, [""])
sketch13.MapMode = "FlatFace"
sketch13.AttachmentOffset = App.Placement(V(0, 0, -8), App.Rotation())
sketch13.addGeometry([
    Part.Circle(V(-316, -192, 0), V(0, 0, 1), 1.7295),
    Part.Circle(V(-116, -192, 0), V(0, 0, 1), 1.7295),
    Part.Circle(V(-116, -22, 0), V(0, 0, 1), 1.7295),
    Part.Circle(V(-316, -22, 0), V(0, 0, 1), 1.7295),
], False)
sketch13.addConstraint([
    Sketcher.Constraint("Equal", 0, 1),
    Sketcher.Constraint("Equal", 1, 2),
    Sketcher.Constraint("Equal", 2, 3),
    Sketcher.Constraint("Horizontal", 0, 3, 1, 3),
    Sketcher.Constraint("Horizontal", 2, 3, 3, 3),
    Sketcher.Constraint("Vertical", 1, 3, 2, 3),
    Sketcher.Constraint("Vertical", 0, 3, 3, 3),
    Sketcher.Constraint("Diameter", 0, 3.459),
    Sketcher.Constraint("DistanceX", 0, 3, -1, 1, 316.0),
    Sketcher.Constraint("DistanceY", 0, 3, -1, 1, 192.0),
    Sketcher.Constraint("DistanceX", 1, 3, -1, 1, 116.0),
    Sketcher.Constraint("DistanceY", 2, 3, -1, 1, 22.0),
])
doc.recompute()
hole9 = doc.addObject("PartDesign::Hole", "Hole008")
body.addObject(hole9)
hole9.Profile = sketch13
hole9.ThreadType = "None"
hole9.Diameter = 3.459
hole9.DepthType = "ThroughAll"
hole9.Reversed = True

sketch14 = doc.addObject("Sketcher::SketchObject", "Sketch013")
body.addObject(sketch14)
sketch14.AttachmentSupport = (doc.XZ_Plane, [""])
sketch14.MapMode = "FlatFace"
sketch14.AttachmentOffset = App.Placement(V(0, 0, -8), App.Rotation())
sketch14.addGeometry([
    Part.Circle(V(-359, -183, 0), V(0, 0, 1), 2.2295),
    Part.Circle(V(-359, -33, 0), V(0, 0, 1), 2.2295),
    Part.Circle(V(-64, -183, 0), V(0, 0, 1), 2.2295),
    Part.Circle(V(-64, -33, 0), V(0, 0, 1), 2.2295),
], False)
sketch14.addConstraint([
    Sketcher.Constraint("Equal", 0, 1),
    Sketcher.Constraint("Equal", 1, 2),
    Sketcher.Constraint("Equal", 2, 3),
    Sketcher.Constraint("Horizontal", 0, 3, 2, 3),
    Sketcher.Constraint("Horizontal", 1, 3, 3, 3),
    Sketcher.Constraint("Vertical", 0, 3, 1, 3),
    Sketcher.Constraint("Vertical", 2, 3, 3, 3),
    Sketcher.Constraint("Diameter", 0, 4.459),
    Sketcher.Constraint("DistanceX", 0, 3, -1, 1, 359.0),
    Sketcher.Constraint("DistanceY", 0, 3, -1, 1, 183.0),
    Sketcher.Constraint("DistanceY", 1, 3, -1, 1, 33.0),
    Sketcher.Constraint("DistanceX", 2, 3, -1, 1, 64.0),
])
doc.recompute()
hole10 = doc.addObject("PartDesign::Hole", "Hole009")
body.addObject(hole10)
hole10.Profile = sketch14
hole10.ThreadType = "None"
hole10.Diameter = 4.459
hole10.DepthType = "ThroughAll"
hole10.Reversed = True

doc.recompute()
